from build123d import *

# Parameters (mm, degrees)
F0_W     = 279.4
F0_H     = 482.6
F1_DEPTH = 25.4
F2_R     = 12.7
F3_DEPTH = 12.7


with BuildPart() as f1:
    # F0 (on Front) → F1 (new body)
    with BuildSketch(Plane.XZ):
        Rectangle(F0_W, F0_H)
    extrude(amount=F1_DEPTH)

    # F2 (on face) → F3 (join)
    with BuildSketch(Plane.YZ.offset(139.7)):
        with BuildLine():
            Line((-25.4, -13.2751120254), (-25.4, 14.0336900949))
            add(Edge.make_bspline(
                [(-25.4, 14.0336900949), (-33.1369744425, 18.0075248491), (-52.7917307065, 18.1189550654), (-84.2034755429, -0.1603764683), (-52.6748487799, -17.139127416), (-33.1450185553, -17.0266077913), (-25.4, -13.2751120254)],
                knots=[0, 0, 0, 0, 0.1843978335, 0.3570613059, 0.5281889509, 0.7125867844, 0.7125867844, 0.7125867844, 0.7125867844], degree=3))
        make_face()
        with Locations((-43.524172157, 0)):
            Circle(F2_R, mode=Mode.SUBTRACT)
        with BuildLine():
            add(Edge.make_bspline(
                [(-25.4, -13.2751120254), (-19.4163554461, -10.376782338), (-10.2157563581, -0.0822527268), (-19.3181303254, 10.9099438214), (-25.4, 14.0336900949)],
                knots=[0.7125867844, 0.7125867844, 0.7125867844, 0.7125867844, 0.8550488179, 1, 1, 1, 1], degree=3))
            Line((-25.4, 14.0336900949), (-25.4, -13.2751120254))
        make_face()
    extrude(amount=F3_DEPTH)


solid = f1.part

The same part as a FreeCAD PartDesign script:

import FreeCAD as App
import Part
import Sketcher
Q = App.Units.Quantity


def add_polygon(sketch, points):
    """Adds a closed chain of lines whose ends are joined by coincident constraints."""
    first, n = sketch.GeometryCount, len(points)
    for a, b in zip(points, points[1:] + points[:1]):
        sketch.addGeometry(Part.LineSegment(App.Vector(*a, 0), App.Vector(*b, 0)), False)
    for i in range(n):
        sketch.addConstraint(Sketcher.Constraint("Coincident", first + i, 2, first + (i + 1) % n, 1))

doc = App.newDocument("Part")
body = doc.addObject("PartDesign::Body", "Body")

sketch1 = body.newObject("Sketcher::SketchObject", "Sketch")
sketch1.AttachmentSupport = (doc.getObject("XZ_Plane"), [""])
sketch1.MapMode = "FlatFace"
add_polygon(sketch1, [(-140, 241), (-140, -241), (140, -241), (140, 241)])
sketch1.addConstraint(Sketcher.Constraint("Vertical", 0))
sketch1.addConstraint(Sketcher.Constraint("Horizontal", 1))
sketch1.addConstraint(Sketcher.Constraint("Vertical", 2))
sketch1.addConstraint(Sketcher.Constraint("Horizontal", 3))
sketch1.addConstraint(Sketcher.Constraint("Symmetric", 0, 2, 2, 2, -1, 1))
sketch1.addConstraint(Sketcher.Constraint("DistanceX", 1, 1, 1, 2, Q("11 in")))
sketch1.addConstraint(Sketcher.Constraint("DistanceY", 0, 2, 0, 1, Q("19 in")))
pad1 = body.newObject("PartDesign::Pad", "Pad")
pad1.Profile = sketch1
pad1.Length = Q("1 in")

sketch2 = body.newObject("Sketcher::SketchObject", "Sketch001")
sketch2.AttachmentSupport = (doc.getObject("YZ_Plane"), [""])
sketch2.MapMode = "FlatFace"
sketch2.AttachmentOffset = App.Placement(App.Vector(0, 0, 5.5 * 25.4), App.Rotation())
sketch2.addGeometry(Part.BSplineCurve([App.Vector(-25.4, 14.03369, 0), App.Vector(-33.136974, 18.007525, 0), App.Vector(-52.791731, 18.118955, 0), App.Vector(-84.203476, -0.160376, 0), App.Vector(-52.674849, -17.139127, 0), App.Vector(-33.145019, -17.026608, 0), App.Vector(-25.4, -13.275112, 0)], [4, 1, 1, 1, 4], [0, 0.184397833, 0.357061306, 0.528188951, 0.712586784], False, 3, [1, 1, 1, 1, 1, 1, 1], False), False)
sketch2.addGeometry(Part.BSplineCurve([App.Vector(-25.4, -13.275112, 0), App.Vector(-19.416355, -10.376782, 0), App.Vector(-10.215756, -0.082253, 0), App.Vector(-19.31813, 10.909944, 0), App.Vector(-25.4, 14.03369, 0)], [4, 1, 4], [0.712586784, 0.855048818, 1], False, 3, [1, 1, 1, 1, 1], False), False)
sketch2.addGeometry(Part.Circle(App.Vector(-43.524172, 0, 0), App.Vector(0, 0, 1), 12.7), False)
sketch2.addConstraint(Sketcher.Constraint("Block", 0))
sketch2.addConstraint(Sketcher.Constraint("Block", 1))
sketch2.addConstraint(Sketcher.Constraint("PointOnObject", 2, 3, -1))
sketch2.addConstraint(Sketcher.Constraint("Diameter", 2, Q("1 in")))
sketch2.addConstraint(Sketcher.Constraint("DistanceX", 2, 3, -1, 1, 43.524172))
pad2 = body.newObject("PartDesign::Pad", "Pad001")
pad2.Profile = sketch2
pad2.Length = Q("0.5 in")

doc.recompute()
